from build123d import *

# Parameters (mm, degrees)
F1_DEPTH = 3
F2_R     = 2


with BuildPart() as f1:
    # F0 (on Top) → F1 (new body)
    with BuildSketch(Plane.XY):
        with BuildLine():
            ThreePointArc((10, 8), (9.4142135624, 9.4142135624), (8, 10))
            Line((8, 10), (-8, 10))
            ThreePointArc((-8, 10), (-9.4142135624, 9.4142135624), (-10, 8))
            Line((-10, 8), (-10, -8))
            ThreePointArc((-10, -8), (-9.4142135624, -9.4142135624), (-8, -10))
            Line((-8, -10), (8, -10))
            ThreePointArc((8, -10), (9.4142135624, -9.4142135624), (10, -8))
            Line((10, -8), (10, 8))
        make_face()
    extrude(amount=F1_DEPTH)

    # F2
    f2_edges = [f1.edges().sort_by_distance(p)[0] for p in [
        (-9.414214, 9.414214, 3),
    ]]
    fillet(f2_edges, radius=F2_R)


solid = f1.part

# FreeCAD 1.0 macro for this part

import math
import FreeCAD as App
import Part
import Sketcher

V = App.Vector
Q = App.Units.Quantity


def edges_at(feature, points):
    """Names of the edges that pass closest to the given points."""
    edges = feature.Shape.Edges
    near = lambda p: min(range(len(edges)), key=lambda i: edges[i].distToShape(Part.Vertex(*p))[0])
    return sorted({f"Edge{near(p) + 1}" for p in points})

doc = App.newDocument("Part")
params = doc.addObject("Spreadsheet::Sheet", "Params")
for row, (alias, value) in enumerate([
    ("sketch1_radius", "2 mm"),
    ("sketch1_width", "16 mm"),
    ("pad1_length", "3 mm"),
    ("fillet_radius", "2 mm"),
], start=1):
    params.set(f"A{row}", alias)
    params.set(f"B{row}", "=" + value)
    params.setAlias(f"B{row}", alias)

body = doc.addObject("PartDesign::Body", "Body")

sketch1 = doc.addObject("Sketcher::SketchObject", "Sketch")
body.addObject(sketch1)
sketch1.AttachmentSupport = (doc.XY_Plane, [""])
sketch1.MapMode = "FlatFace"
sketch1.addGeometry(Part.ArcOfCircle(Part.Circle(V(8, 8, 0), V(0, 0, 1), 2), math.radians(0), math.radians(90)), False)
sketch1.addGeometry(Part.LineSegment(V(8, 10, 0), V(-8, 10, 0)), False)
sketch1.addGeometry(Part.ArcOfCircle(Part.Circle(V(-8, 8, 0), V(0, 0, 1), 2), math.radians(90), math.radians(180)), False)
sketch1.addGeometry(Part.LineSegment(V(-10, 8, 0), V(-10, -8, 0)), False)
sketch1.addGeometry(Part.ArcOfCircle(Part.Circle(V(-8, -8, 0), V(0, 0, 1), 2), math.radians(180), math.radians(270)), False)
sketch1.addGeometry(Part.LineSegment(V(-8, -10, 0), V(8, -10, 0)), False)
sketch1.addGeometry(Part.ArcOfCircle(Part.Circle(V(8, -8, 0), V(0, 0, 1), 2), math.radians(-90), math.radians(0)), False)
sketch1.addGeometry(Part.LineSegment(V(10, -8, 0), V(10, 8, 0)), False)
sketch1.addConstraint(Sketcher.Constraint("Tangent", 0, 2, 1, 1))
sketch1.addConstraint(Sketcher.Constraint("Tangent", 1, 2, 2, 1))
sketch1.addConstraint(Sketcher.Constraint("Tangent", 2, 2, 3, 1))
sketch1.addConstraint(Sketcher.Constraint("Tangent", 3, 2, 4, 1))
sketch1.addConstraint(Sketcher.Constraint("Tangent", 4, 2, 5, 1))
sketch1.addConstraint(Sketcher.Constraint("Tangent", 5, 2, 6, 1))
sketch1.addConstraint(Sketcher.Constraint("Tangent", 6, 2, 7, 1))
sketch1.addConstraint(Sketcher.Constraint("Tangent", 7, 2, 0, 1))
sketch1.addConstraint(Sketcher.Constraint("Horizontal", 1))
sketch1.addConstraint(Sketcher.Constraint("Vertical", 3))
sketch1.addConstraint(Sketcher.Constraint("Horizontal", 5))
sketch1.addConstraint(Sketcher.Constraint("Vertical", 7))
sketch1.addConstraint(Sketcher.Constraint("Equal", 0, 2))
sketch1.addConstraint(Sketcher.Constraint("Equal", 2, 4))
sketch1.addConstraint(Sketcher.Constraint("Equal", 4, 6))
sketch1.addConstraint(Sketcher.Constraint("Symmetric", 0, 3, 4, 3, -1, 1))
sketch1.addConstraint(Sketcher.Constraint("Equal", 5, 3))
sketch1.addConstraint(Sketcher.Constraint("Radius", 0, Q("2 mm")))
sketch1.addConstraint(Sketcher.Constraint("DistanceX", 1, 2, 1, 1, Q("16 mm")))
sketch1.setExpression("Constraints[17]", "Params.sketch1_radius")
sketch1.setExpression("Constraints[18]", "Params.sketch1_width")
pad1 = doc.addObject("PartDesign::Pad", "Pad")
body.addObject(pad1)
pad1.Profile = sketch1
pad1.setExpression("Length", "Params.pad1_length")
doc.recompute()

fillet = doc.addObject("PartDesign::Fillet", "Fillet")
body.addObject(fillet)
fillet.Base = (pad1, edges_at(pad1, [(-9.414, 9.414, 3)]))
fillet.setExpression("Radius", "Params.fillet_radius")

doc.recompute()
